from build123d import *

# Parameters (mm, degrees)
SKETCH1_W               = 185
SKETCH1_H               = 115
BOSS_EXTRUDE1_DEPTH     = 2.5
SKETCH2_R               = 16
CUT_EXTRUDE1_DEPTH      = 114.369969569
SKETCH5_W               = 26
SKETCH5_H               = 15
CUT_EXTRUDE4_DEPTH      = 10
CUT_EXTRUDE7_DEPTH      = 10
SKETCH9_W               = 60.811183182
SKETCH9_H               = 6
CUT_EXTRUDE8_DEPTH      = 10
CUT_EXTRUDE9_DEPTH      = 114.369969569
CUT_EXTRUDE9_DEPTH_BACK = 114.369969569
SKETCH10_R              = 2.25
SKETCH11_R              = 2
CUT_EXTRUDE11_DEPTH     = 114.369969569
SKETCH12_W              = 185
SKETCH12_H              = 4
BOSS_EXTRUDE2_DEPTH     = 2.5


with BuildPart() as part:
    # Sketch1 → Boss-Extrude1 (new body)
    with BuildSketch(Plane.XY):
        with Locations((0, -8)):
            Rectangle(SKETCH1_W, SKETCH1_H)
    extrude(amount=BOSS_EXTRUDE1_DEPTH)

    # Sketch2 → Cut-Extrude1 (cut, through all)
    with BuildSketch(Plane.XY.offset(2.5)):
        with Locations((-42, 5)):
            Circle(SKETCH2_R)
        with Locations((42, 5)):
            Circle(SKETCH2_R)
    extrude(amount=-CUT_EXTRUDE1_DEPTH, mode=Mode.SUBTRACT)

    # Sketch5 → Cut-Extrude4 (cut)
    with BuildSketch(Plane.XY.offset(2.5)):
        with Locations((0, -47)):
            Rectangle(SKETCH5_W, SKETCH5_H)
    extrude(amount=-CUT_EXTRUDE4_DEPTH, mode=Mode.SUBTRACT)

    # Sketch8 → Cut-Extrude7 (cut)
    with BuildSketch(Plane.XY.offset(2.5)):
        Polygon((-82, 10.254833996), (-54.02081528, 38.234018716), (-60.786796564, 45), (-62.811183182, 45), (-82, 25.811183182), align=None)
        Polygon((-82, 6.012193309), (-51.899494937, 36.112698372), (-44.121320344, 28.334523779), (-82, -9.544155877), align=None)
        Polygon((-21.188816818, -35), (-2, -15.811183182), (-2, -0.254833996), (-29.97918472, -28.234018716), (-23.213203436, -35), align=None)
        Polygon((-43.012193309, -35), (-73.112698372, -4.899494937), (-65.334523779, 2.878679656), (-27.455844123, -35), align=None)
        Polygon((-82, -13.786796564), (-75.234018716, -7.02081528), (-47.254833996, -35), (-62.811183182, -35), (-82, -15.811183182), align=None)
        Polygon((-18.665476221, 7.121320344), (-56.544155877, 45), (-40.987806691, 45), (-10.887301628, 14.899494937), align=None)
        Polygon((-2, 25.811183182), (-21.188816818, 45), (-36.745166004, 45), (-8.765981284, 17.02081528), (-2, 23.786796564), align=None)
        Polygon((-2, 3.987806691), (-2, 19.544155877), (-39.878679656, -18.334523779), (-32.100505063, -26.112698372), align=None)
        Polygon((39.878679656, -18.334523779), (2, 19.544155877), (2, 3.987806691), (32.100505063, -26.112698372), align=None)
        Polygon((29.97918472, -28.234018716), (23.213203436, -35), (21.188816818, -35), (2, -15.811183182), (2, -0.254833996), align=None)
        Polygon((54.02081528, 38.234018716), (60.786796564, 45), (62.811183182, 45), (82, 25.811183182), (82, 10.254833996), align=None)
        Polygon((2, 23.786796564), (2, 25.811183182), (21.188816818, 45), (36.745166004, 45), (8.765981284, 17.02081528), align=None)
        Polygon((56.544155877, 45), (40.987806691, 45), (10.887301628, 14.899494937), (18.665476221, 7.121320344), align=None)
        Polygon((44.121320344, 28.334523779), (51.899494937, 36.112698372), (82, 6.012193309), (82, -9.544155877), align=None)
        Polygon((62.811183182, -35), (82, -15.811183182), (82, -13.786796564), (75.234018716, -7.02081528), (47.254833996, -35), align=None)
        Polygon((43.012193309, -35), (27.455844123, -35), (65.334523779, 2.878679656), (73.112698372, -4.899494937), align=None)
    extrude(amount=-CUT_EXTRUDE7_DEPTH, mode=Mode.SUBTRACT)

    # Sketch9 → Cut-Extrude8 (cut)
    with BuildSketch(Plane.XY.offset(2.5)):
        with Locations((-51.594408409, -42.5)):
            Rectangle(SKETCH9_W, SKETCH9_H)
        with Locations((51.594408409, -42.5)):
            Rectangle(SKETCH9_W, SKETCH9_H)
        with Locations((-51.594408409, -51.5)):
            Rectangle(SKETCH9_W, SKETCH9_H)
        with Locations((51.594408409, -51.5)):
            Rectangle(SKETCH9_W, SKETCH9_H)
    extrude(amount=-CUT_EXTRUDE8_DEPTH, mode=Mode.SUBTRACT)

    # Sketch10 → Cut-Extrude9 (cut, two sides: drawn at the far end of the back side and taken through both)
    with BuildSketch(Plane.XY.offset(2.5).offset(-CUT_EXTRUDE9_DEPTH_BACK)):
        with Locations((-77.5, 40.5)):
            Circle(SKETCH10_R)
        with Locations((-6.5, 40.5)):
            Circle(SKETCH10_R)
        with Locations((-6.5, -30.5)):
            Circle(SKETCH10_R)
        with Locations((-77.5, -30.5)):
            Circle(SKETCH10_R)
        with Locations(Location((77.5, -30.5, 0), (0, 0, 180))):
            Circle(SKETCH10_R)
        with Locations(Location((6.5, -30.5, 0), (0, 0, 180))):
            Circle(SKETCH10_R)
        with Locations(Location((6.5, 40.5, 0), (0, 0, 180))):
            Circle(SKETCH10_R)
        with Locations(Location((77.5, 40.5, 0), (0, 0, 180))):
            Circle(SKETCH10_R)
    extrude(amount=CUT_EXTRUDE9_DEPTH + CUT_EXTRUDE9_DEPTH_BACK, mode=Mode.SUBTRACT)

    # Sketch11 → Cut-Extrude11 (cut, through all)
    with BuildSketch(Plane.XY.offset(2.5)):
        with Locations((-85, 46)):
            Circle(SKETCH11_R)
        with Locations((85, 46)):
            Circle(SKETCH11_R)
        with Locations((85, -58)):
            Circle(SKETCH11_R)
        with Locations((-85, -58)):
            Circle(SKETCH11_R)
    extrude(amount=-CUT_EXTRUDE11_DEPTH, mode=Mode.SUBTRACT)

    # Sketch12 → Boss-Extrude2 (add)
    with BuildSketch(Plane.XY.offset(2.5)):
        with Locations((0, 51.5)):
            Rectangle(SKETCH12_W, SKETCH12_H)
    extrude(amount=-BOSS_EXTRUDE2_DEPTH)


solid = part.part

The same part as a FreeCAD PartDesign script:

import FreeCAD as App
import Part
import Sketcher

V = App.Vector


def add_polygon(sketch, points):
    """Adds a closed chain of lines whose ends are joined by coincident constraints."""
    first, n = sketch.GeometryCount, len(points)
    for a, b in zip(points, points[1:] + points[:1]):
        sketch.addGeometry(Part.LineSegment(App.Vector(*a, 0), App.Vector(*b, 0)), False)
    for i in range(n):
        sketch.addConstraint(Sketcher.Constraint("Coincident", first + i, 2, first + (i + 1) % n, 1))

doc = App.newDocument("Part")
body = doc.addObject("PartDesign::Body", "Body")

# Sketch on XY plane
sketch1 = body.newObject("Sketcher::SketchObject", "Sketch")
sketch1.AttachmentSupport = (doc.getObject("XY_Plane"), [""])
sketch1.MapMode = "FlatFace"
add_polygon(sketch1, [(-92, 50), (-92, -66), (92, -66), (92, 50)])  # lines 0-3
sketch1.addConstraint([
    Sketcher.Constraint("Vertical", 0),
    Sketcher.Constraint("Horizontal", 1),
    Sketcher.Constraint("Vertical", 2),
    Sketcher.Constraint("Horizontal", 3),
    Sketcher.Constraint("DistanceX", 1, 1, 1, 2, 185.0),
    Sketcher.Constraint("DistanceY", 0, 2, 0, 1, 115.0),
    Sketcher.Constraint("DistanceX", 0, 2, -1, 1, 92.5),
    Sketcher.Constraint("DistanceY", 0, 2, -1, 1, 65.5),
])
pad1 = body.newObject("PartDesign::Pad", "Pad")
pad1.Profile = sketch1
pad1.Length = 2.5

# Sketch on XY plane
sketch2 = body.newObject("Sketcher::SketchObject", "Sketch001")
sketch2.AttachmentSupport = (doc.getObject("XY_Plane"), [""])
sketch2.MapMode = "FlatFace"
sketch2.AttachmentOffset = App.Placement(V(0, 0, 2.5), App.Rotation())
sketch2.addGeometry([
    Part.Circle(V(-42, 5, 0), V(0, 0, 1), 16),
    Part.Circle(V(42, 5, 0), V(0, 0, 1), 16),
], False)
sketch2.addConstraint([
    Sketcher.Constraint("Equal", 0, 1),
    Sketcher.Constraint("Symmetric", 0, 3, 1, 3, -2),
    Sketcher.Constraint("Diameter", 0, 32.0),
    Sketcher.Constraint("DistanceX", 0, 3, -1, 1, 42.0),
    Sketcher.Constraint("DistanceY", -1, 1, 0, 3, 5.0),
])
pocket1 = body.newObject("PartDesign::Pocket", "Pocket")
pocket1.Profile = sketch2
pocket1.Type = "ThroughAll"

# Sketch on XY plane
sketch3 = body.newObject("Sketcher::SketchObject", "Sketch002")
sketch3.AttachmentSupport = (doc.getObject("XY_Plane"), [""])
sketch3.MapMode = "FlatFace"
sketch3.AttachmentOffset = App.Placement(V(0, 0, 2.5), App.Rotation())
add_polygon(sketch3, [(-13, -40), (-13, -54), (13, -54), (13, -40)])  # lines 0-3
sketch3.addConstraint([
    Sketcher.Constraint("Vertical", 0),
    Sketcher.Constraint("Horizontal", 1),
    Sketcher.Constraint("Vertical", 2),
    Sketcher.Constraint("Horizontal", 3),
    Sketcher.Constraint("DistanceX", 1, 1, 1, 2, 26.0),
    Sketcher.Constraint("DistanceY", 0, 2, 0, 1, 15.0),
    Sketcher.Constraint("DistanceX", 0, 2, -1, 1, 13.0),
    Sketcher.Constraint("DistanceY", 0, 2, -1, 1, 54.5),
])
pocket2 = body.newObject("PartDesign::Pocket", "Pocket001")
pocket2.Profile = sketch3
pocket2.Length = 10

# Sketch on XY plane
sketch4 = body.newObject("Sketcher::SketchObject", "Sketch003")
sketch4.AttachmentSupport = (doc.getObject("XY_Plane"), [""])
sketch4.MapMode = "FlatFace"
sketch4.AttachmentOffset = App.Placement(V(0, 0, 2.5), App.Rotation())
add_polygon(sketch4, [(-82, 10.3), (-54, 38.2), (-60.8, 45), (-62.8, 45), (-82, 25.8)])  # lines 0-4
add_polygon(sketch4, [(-51.9, 36.1), (-82, 6), (-82, -9.5), (-44.1, 28.3)])  # lines 5-8
add_polygon(sketch4, [(-21.2, -35), (-2, -15.8), (-2, -0.3), (-30, -28.2), (-23.2, -35)])  # lines 9-13
add_polygon(sketch4, [(-73.1, -4.9), (-43, -35), (-27.5, -35), (-65.3, 2.9)])  # lines 14-17
add_polygon(sketch4, [(-75.2, -7), (-82, -13.8), (-82, -15.8), (-62.8, -35), (-47.3, -35)])  # lines 18-22
add_polygon(sketch4, [(-56.5, 45), (-18.7, 7.1), (-10.9, 14.9), (-41, 45)])  # lines 23-26
add_polygon(sketch4, [(-2, 25.8), (-21.2, 45), (-36.7, 45), (-8.8, 17), (-2, 23.8)])  # lines 27-31
add_polygon(sketch4, [(-2, 4), (-2, 19.5), (-39.9, -18.3), (-32.1, -26.1)])  # lines 32-35
add_polygon(sketch4, [(39.9, -18.3), (2, 19.5), (2, 4), (32.1, -26.1)])  # lines 36-39
add_polygon(sketch4, [(23.2, -35), (30, -28.2), (2, -0.3), (2, -15.8), (21.2, -35)])  # lines 40-44
add_polygon(sketch4, [(60.8, 45), (54, 38.2), (82, 10.3), (82, 25.8), (62.8, 45)])  # lines 45-49
add_polygon(sketch4, [(2, 25.8), (2, 23.8), (8.8, 17), (36.7, 45), (21.2, 45)])  # lines 50-54
add_polygon(sketch4, [(56.5, 45), (41, 45), (10.9, 14.9), (18.7, 7.1)])  # lines 55-58
add_polygon(sketch4, [(51.9, 36.1), (44.1, 28.3), (82, -9.5), (82, 6)])  # lines 59-62
add_polygon(sketch4, [(62.8, -35), (82, -15.8), (82, -13.8), (75.2, -7), (47.3, -35)])  # lines 63-67
add_polygon(sketch4, [(27.5, -35), (43, -35), (73.1, -4.9), (65.3, 2.9)])  # lines 68-71
sketch4.addConstraint([
    Sketcher.Constraint("Horizontal", 2),
    Sketcher.Constraint("Vertical", 4),
    Sketcher.Constraint("Vertical", 6),
    Sketcher.Constraint("Vertical", 10),
    Sketcher.Constraint("Horizontal", 13),
    Sketcher.Constraint("Horizontal", 15),
    Sketcher.Constraint("Vertical", 19),
    Sketcher.Constraint("Horizontal", 21),
    Sketcher.Constraint("Horizontal", 26),
    Sketcher.Constraint("Horizontal", 28),
    Sketcher.Constraint("Vertical", 31),
    Sketcher.Constraint("Vertical", 32),
    Sketcher.Constraint("Vertical", 37),
    Sketcher.Constraint("Vertical", 42),
    Sketcher.Constraint("Horizontal", 44),
    Sketcher.Constraint("Vertical", 47),
    Sketcher.Constraint("Horizontal", 49),
    Sketcher.Constraint("Vertical", 50),
    Sketcher.Constraint("Horizontal", 53),
    Sketcher.Constraint("Horizontal", 55),
    Sketcher.Constraint("Vertical", 61),
    Sketcher.Constraint("Vertical", 64),
    Sketcher.Constraint("Horizontal", 67),
    Sketcher.Constraint("Horizontal", 68),
    Sketcher.Constraint("Symmetric", 32, 2, 36, 2, -2),
    Sketcher.Constraint("Symmetric", 34, 2, 38, 2, -2),
    Sketcher.Constraint("Symmetric", 33, 2, 39, 2, -2),
    Sketcher.Constraint("Symmetric", 11, 2, 40, 2, -2),
    Sketcher.Constraint("Symmetric", 10, 2, 41, 2, -2),
    Sketcher.Constraint("Symmetric", 13, 2, 43, 2, -2),
    Sketcher.Constraint("Symmetric", 0, 2, 45, 2, -2),
    Sketcher.Constraint("Symmetric", 4, 2, 46, 2, -2),
    Sketcher.Constraint("Symmetric", 2, 2, 48, 2, -2),
    Sketcher.Constraint("Symmetric", 30, 2, 50, 2, -2),
    Sketcher.Constraint("Symmetric", 29, 2, 51, 2, -2),
    Sketcher.Constraint("Symmetric", 28, 2, 52, 2, -2),
    Sketcher.Constraint("Symmetric", 25, 2, 55, 2, -2),
    Sketcher.Constraint("Symmetric", 24, 2, 56, 2, -2),
    Sketcher.Constraint("Symmetric", 23, 2, 57, 2, -2),
    Sketcher.Constraint("Symmetric", 7, 2, 59, 2, -2),
    Sketcher.Constraint("Symmetric", 6, 2, 60, 2, -2),
    Sketcher.Constraint("Symmetric", 8, 2, 62, 2, -2),
    Sketcher.Constraint("Symmetric", 19, 2, 63, 2, -2),
    Sketcher.Constraint("Symmetric", 22, 2, 65, 2, -2),
    Sketcher.Constraint("Symmetric", 21, 2, 66, 2, -2),
    Sketcher.Constraint("Symmetric", 14, 2, 68, 2, -2),
    Sketcher.Constraint("Symmetric", 17, 2, 69, 2, -2),
    Sketcher.Constraint("Symmetric", 16, 2, 70, 2, -2),
    Sketcher.Constraint("Perpendicular", 0, 1),
    Sketcher.Constraint("Perpendicular", 1, 3),
    Sketcher.Constraint("Parallel", 3, 5),
    Sketcher.Constraint("Parallel", 5, 7),
    Sketcher.Constraint("Perpendicular", 7, 8),
    Sketcher.Constraint("Perpendicular", 8, 9),
    Sketcher.Constraint("Parallel", 9, 11),
    Sketcher.Constraint("Perpendicular", 11, 12),
    Sketcher.Constraint("Parallel", 12, 14),
    Sketcher.Constraint("Parallel", 14, 16),
    Sketcher.Constraint("Perpendicular", 16, 17),
    Sketcher.Constraint("Parallel", 17, 18),
    Sketcher.Constraint("Perpendicular", 18, 20),
    Sketcher.Constraint("Parallel", 20, 22),
    Sketcher.Constraint("Parallel", 22, 23),
    Sketcher.Constraint("Perpendicular", 23, 24),
    Sketcher.Constraint("Perpendicular", 24, 25),
    Sketcher.Constraint("Parallel", 25, 27),
    Sketcher.Constraint("Parallel", 27, 29),
    Sketcher.Constraint("Perpendicular", 29, 30),
    Sketcher.Constraint("Parallel", 30, 33),
    Sketcher.Constraint("Perpendicular", 33, 34),
    Sketcher.Constraint("Perpendicular", 34, 35),
    Sketcher.Constraint("Perpendicular", 35, 36),
    Sketcher.Constraint("Parallel", 36, 38),
    Sketcher.Constraint("Parallel", 39, 40),
    Sketcher.Constraint("Parallel", 41, 43),
    Sketcher.Constraint("Perpendicular", 43, 45),
    Sketcher.Constraint("Parallel", 46, 48),
    Sketcher.Constraint("Parallel", 52, 54),
    Sketcher.Constraint("Perpendicular", 57, 58),
    Sketcher.Constraint("Parallel", 60, 62),
    Sketcher.Constraint("Perpendicular", 62, 63),
    Sketcher.Constraint("Perpendicular", 63, 65),
    Sketcher.Constraint("Perpendicular", 70, 71),
    Sketcher.Constraint("Horizontal", 13, 2, 14, 2),
    Sketcher.Constraint("Horizontal", 9, 2, 19, 2),
    Sketcher.Constraint("Horizontal", 15, 2, 20, 2),
    Sketcher.Constraint("Horizontal", 2, 2, 25, 2),
    Sketcher.Constraint("Horizontal", 26, 2, 27, 2),
    Sketcher.Constraint("Horizontal", 3, 2, 31, 2),
    Sketcher.Constraint("Horizontal", 47, 2, 54, 2),
    Sketcher.Constraint("Vertical", 4, 2, 5, 2),
    Sketcher.Constraint("Vertical", 6, 2, 18, 2),
    Sketcher.Constraint("Vertical", 2, 2, 20, 2),
    Sketcher.Constraint("Vertical", 13, 2, 27, 2),
    Sketcher.Constraint("Vertical", 31, 2, 32, 2),
    Sketcher.Constraint("Equal", 2, 13),
    Sketcher.Constraint("Equal", 15, 21),
    Sketcher.Constraint("Equal", 21, 26),
    Sketcher.Constraint("Equal", 26, 28),
    Sketcher.Constraint("Equal", 68, 4),
    Sketcher.Constraint("Equal", 4, 6),
    Sketcher.Constraint("Equal", 6, 10),
    Sketcher.Constraint("Equal", 49, 19),
    Sketcher.Constraint("Equal", 19, 31),
    Sketcher.Constraint("Equal", 10, 32),
    Sketcher.Constraint("Equal", 5, 14),
    Sketcher.Constraint("Equal", 16, 23),
    Sketcher.Constraint("Equal", 23, 33),
    Sketcher.Constraint("Distance", 8, 11.0),
    Sketcher.Constraint("DistanceY", -1, 1, 1, 2, 45.0),
    Sketcher.Constraint("DistanceX", 3, 2, -1, 1, 82.0),
    Sketcher.Constraint("DistanceX", 9, 2, -1, 1, 2.0),
    Sketcher.Constraint("DistanceY", 12, 2, -1, 1, 35.0),
    Sketcher.Constraint("DistanceY", -1, 1, 8, 2, 36.112698),
    Sketcher.Constraint("DistanceX", 17, 2, -1, 1, 73.112698),
    Sketcher.Constraint("DistanceX", 24, 2, -1, 1, 10.887302),
    Sketcher.Constraint("DistanceY", 34, 2, -1, 1, 26.112698),
    Sketcher.Constraint("DistanceX", 2, 2, 2, 1, 2.024387),
    Sketcher.Constraint("DistanceX", 7, 2, -1, 1, 44.12132),
    Sketcher.Constraint("Distance", 0, 39.568542),
])
pocket3 = body.newObject("PartDesign::Pocket", "Pocket002")
pocket3.Profile = sketch4
pocket3.Length = 10

# Sketch on XY plane
sketch5 = body.newObject("Sketcher::SketchObject", "Sketch004")
sketch5.AttachmentSupport = (doc.getObject("XY_Plane"), [""])
sketch5.MapMode = "FlatFace"
sketch5.AttachmentOffset = App.Placement(V(0, 0, 2.5), App.Rotation())
add_polygon(sketch5, [(-82, -40), (-82, -46), (-21, -46), (-21, -40)])  # lines 0-3
add_polygon(sketch5, [(21, -40), (21, -46), (82, -46), (82, -40)])  # lines 4-7
add_polygon(sketch5, [(-82, -48), (-82, -54), (-21, -54), (-21, -48)])  # lines 8-11
add_polygon(sketch5, [(21, -48), (21, -54), (82, -54), (82, -48)])  # lines 12-15
sketch5.addConstraint([
    Sketcher.Constraint("Vertical", 0),
    Sketcher.Constraint("Horizontal", 1),
    Sketcher.Constraint("Vertical", 2),
    Sketcher.Constraint("Horizontal", 3),
    Sketcher.Constraint("Vertical", 4),
    Sketcher.Constraint("Horizontal", 5),
    Sketcher.Constraint("Vertical", 6),
    Sketcher.Constraint("Horizontal", 7),
    Sketcher.Constraint("Vertical", 8),
    Sketcher.Constraint("Horizontal", 9),
    Sketcher.Constraint("Vertical", 10),
    Sketcher.Constraint("Horizontal", 11),
    Sketcher.Constraint("Vertical", 12),
    Sketcher.Constraint("Horizontal", 13),
    Sketcher.Constraint("Vertical", 14),
    Sketcher.Constraint("Horizontal", 15),
    Sketcher.Constraint("Symmetric", 1, 2, 4, 2, -2),
    Sketcher.Constraint("Symmetric", 3, 2, 6, 2, -2),
    Sketcher.Constraint("Symmetric", 9, 2, 12, 2, -2),
    Sketcher.Constraint("Symmetric", 11, 2, 14, 2, -2),
    Sketcher.Constraint("Vertical", 3, 2, 8, 2),
    Sketcher.Constraint("Vertical", 2, 2, 9, 2),
    Sketcher.Constraint("Equal", 6, 8),
    Sketcher.Constraint("DistanceY", 0, 2, 0, 1, 6.0),
    Sketcher.Constraint("DistanceX", 0, 2, -1, 1, 82.0),
    Sketcher.Constraint("DistanceY", 8, 2, 0, 2, 9.0),
    Sketcher.Constraint("DistanceY", 0, 2, -1, 1, 45.5),
    Sketcher.Constraint("DistanceX", 1, 1, 1, 2, 60.811183),
])
pocket4 = body.newObject("PartDesign::Pocket", "Pocket003")
pocket4.Profile = sketch5
pocket4.Length = 10

# Sketch on XY plane
sketch6 = body.newObject("Sketcher::SketchObject", "Sketch005")
sketch6.AttachmentSupport = (doc.getObject("XY_Plane"), [""])
sketch6.MapMode = "FlatFace"
sketch6.AttachmentOffset = App.Placement(V(0, 0, 2.5), App.Rotation())
sketch6.addGeometry([
    Part.Circle(V(-77.5, 40.5, 0), V(0, 0, 1), 2.2),  # 0
    Part.Circle(V(-6.5, 40.5, 0), V(0, 0, 1), 2.2),  # 1
    Part.Circle(V(-6.5, -30.5, 0), V(0, 0, 1), 2.2),  # 2
    Part.Circle(V(-77.5, -30.5, 0), V(0, 0, 1), 2.2),  # 3
    Part.Circle(V(77.5, -30.5, 0), V(0, 0, 1), 2.2),  # 4
    Part.Circle(V(6.5, -30.5, 0), V(0, 0, 1), 2.2),  # 5
    Part.Circle(V(6.5, 40.5, 0), V(0, 0, 1), 2.2),  # 6
    Part.Circle(V(77.5, 40.5, 0), V(0, 0, 1), 2.2),  # 7
], False)
sketch6.addConstraint([
    Sketcher.Constraint("Equal", 0, 1),
    Sketcher.Constraint("Equal", 1, 2),
    Sketcher.Constraint("Equal", 2, 3),
    Sketcher.Constraint("Equal", 3, 4),
    Sketcher.Constraint("Equal", 4, 5),
    Sketcher.Constraint("Equal", 5, 6),
    Sketcher.Constraint("Equal", 6, 7),
    Sketcher.Constraint("Symmetric", 3, 3, 4, 3, -2),
    Sketcher.Constraint("Symmetric", 2, 3, 5, 3, -2),
    Sketcher.Constraint("Symmetric", 1, 3, 6, 3, -2),
    Sketcher.Constraint("Symmetric", 0, 3, 7, 3, -2),
    Sketcher.Constraint("Horizontal", 0, 3, 1, 3),
    Sketcher.Constraint("Horizontal", 2, 3, 3, 3),
    Sketcher.Constraint("Vertical", 1, 3, 2, 3),
    Sketcher.Constraint("Vertical", 0, 3, 3, 3),
    Sketcher.Constraint("Diameter", 0, 4.5),
    Sketcher.Constraint("DistanceX", 0, 3, 1, 3, 71.0),
    Sketcher.Constraint("DistanceY", 2, 3, 1, 3, 71.0),
    Sketcher.Constraint("DistanceX", 2, 3, 4, 3, 84.0),
    Sketcher.Constraint("DistanceY", -1, 1, 0, 3, 40.5),
])
pocket5 = body.newObject("PartDesign::Pocket", "Pocket004")
pocket5.Profile = sketch6
pocket5.Type = "ThroughAll"
pocket5.Midplane = True

# Sketch on XY plane
sketch7 = body.newObject("Sketcher::SketchObject", "Sketch006")
sketch7.AttachmentSupport = (doc.getObject("XY_Plane"), [""])
sketch7.MapMode = "FlatFace"
sketch7.AttachmentOffset = App.Placement(V(0, 0, 2.5), App.Rotation())
sketch7.addGeometry([
    Part.Circle(V(-85, 46, 0), V(0, 0, 1), 2),
    Part.Circle(V(85, 46, 0), V(0, 0, 1), 2),
    Part.Circle(V(85, -58, 0), V(0, 0, 1), 2),
    Part.Circle(V(-85, -58, 0), V(0, 0, 1), 2),
], False)
sketch7.addConstraint([
    Sketcher.Constraint("Equal", 0, 1),
    Sketcher.Constraint("Equal", 1, 2),
    Sketcher.Constraint("Equal", 2, 3),
    Sketcher.Constraint("Symmetric", 0, 3, 1, 3, -2),
    Sketcher.Constraint("Symmetric", 2, 3, 3, 3, -2),
    Sketcher.Constraint("Vertical", 1, 3, 2, 3),
    Sketcher.Constraint("Diameter", 0, 4.0),
    Sketcher.Constraint("DistanceX", 0, 3, -1, 1, 85.0),
    Sketcher.Constraint("DistanceY", -1, 1, 0, 3, 46.0),
    Sketcher.Constraint("DistanceY", 2, 3, -1, 1, 58.0),
])
pocket6 = body.newObject("PartDesign::Pocket", "Pocket005")
pocket6.Profile = sketch7
pocket6.Type = "ThroughAll"

# Sketch on XY plane
sketch8 = body.newObject("Sketcher::SketchObject", "Sketch007")
sketch8.AttachmentSupport = (doc.getObject("XY_Plane"), [""])
sketch8.MapMode = "FlatFace"
sketch8.AttachmentOffset = App.Placement(V(0, 0, 2.5), App.Rotation())
add_polygon(sketch8, [(-92.5, 53.5), (-92.5, 49.5), (92.5, 49.5), (92.5, 53.5)])  # lines 0-3
sketch8.addConstraint([
    Sketcher.Constraint("Vertical", 0),
    Sketcher.Constraint("Horizontal", 1),
    Sketcher.Constraint("Vertical", 2),
    Sketcher.Constraint("Horizontal", 3),
    Sketcher.Constraint("DistanceX", 1, 1, 1, 2, 185.0),
    Sketcher.Constraint("DistanceY", 0, 2, 0, 1, 4.0),
    Sketcher.Constraint("DistanceX", 0, 2, -1, 1, 92.5),
    Sketcher.Constraint("DistanceY", -1, 1, 0, 2, 49.5),
])
pad2 = body.newObject("PartDesign::Pad", "Pad001")
pad2.Profile = sketch8
pad2.Length = 2.5
pad2.Reversed = True

doc.recompute()
